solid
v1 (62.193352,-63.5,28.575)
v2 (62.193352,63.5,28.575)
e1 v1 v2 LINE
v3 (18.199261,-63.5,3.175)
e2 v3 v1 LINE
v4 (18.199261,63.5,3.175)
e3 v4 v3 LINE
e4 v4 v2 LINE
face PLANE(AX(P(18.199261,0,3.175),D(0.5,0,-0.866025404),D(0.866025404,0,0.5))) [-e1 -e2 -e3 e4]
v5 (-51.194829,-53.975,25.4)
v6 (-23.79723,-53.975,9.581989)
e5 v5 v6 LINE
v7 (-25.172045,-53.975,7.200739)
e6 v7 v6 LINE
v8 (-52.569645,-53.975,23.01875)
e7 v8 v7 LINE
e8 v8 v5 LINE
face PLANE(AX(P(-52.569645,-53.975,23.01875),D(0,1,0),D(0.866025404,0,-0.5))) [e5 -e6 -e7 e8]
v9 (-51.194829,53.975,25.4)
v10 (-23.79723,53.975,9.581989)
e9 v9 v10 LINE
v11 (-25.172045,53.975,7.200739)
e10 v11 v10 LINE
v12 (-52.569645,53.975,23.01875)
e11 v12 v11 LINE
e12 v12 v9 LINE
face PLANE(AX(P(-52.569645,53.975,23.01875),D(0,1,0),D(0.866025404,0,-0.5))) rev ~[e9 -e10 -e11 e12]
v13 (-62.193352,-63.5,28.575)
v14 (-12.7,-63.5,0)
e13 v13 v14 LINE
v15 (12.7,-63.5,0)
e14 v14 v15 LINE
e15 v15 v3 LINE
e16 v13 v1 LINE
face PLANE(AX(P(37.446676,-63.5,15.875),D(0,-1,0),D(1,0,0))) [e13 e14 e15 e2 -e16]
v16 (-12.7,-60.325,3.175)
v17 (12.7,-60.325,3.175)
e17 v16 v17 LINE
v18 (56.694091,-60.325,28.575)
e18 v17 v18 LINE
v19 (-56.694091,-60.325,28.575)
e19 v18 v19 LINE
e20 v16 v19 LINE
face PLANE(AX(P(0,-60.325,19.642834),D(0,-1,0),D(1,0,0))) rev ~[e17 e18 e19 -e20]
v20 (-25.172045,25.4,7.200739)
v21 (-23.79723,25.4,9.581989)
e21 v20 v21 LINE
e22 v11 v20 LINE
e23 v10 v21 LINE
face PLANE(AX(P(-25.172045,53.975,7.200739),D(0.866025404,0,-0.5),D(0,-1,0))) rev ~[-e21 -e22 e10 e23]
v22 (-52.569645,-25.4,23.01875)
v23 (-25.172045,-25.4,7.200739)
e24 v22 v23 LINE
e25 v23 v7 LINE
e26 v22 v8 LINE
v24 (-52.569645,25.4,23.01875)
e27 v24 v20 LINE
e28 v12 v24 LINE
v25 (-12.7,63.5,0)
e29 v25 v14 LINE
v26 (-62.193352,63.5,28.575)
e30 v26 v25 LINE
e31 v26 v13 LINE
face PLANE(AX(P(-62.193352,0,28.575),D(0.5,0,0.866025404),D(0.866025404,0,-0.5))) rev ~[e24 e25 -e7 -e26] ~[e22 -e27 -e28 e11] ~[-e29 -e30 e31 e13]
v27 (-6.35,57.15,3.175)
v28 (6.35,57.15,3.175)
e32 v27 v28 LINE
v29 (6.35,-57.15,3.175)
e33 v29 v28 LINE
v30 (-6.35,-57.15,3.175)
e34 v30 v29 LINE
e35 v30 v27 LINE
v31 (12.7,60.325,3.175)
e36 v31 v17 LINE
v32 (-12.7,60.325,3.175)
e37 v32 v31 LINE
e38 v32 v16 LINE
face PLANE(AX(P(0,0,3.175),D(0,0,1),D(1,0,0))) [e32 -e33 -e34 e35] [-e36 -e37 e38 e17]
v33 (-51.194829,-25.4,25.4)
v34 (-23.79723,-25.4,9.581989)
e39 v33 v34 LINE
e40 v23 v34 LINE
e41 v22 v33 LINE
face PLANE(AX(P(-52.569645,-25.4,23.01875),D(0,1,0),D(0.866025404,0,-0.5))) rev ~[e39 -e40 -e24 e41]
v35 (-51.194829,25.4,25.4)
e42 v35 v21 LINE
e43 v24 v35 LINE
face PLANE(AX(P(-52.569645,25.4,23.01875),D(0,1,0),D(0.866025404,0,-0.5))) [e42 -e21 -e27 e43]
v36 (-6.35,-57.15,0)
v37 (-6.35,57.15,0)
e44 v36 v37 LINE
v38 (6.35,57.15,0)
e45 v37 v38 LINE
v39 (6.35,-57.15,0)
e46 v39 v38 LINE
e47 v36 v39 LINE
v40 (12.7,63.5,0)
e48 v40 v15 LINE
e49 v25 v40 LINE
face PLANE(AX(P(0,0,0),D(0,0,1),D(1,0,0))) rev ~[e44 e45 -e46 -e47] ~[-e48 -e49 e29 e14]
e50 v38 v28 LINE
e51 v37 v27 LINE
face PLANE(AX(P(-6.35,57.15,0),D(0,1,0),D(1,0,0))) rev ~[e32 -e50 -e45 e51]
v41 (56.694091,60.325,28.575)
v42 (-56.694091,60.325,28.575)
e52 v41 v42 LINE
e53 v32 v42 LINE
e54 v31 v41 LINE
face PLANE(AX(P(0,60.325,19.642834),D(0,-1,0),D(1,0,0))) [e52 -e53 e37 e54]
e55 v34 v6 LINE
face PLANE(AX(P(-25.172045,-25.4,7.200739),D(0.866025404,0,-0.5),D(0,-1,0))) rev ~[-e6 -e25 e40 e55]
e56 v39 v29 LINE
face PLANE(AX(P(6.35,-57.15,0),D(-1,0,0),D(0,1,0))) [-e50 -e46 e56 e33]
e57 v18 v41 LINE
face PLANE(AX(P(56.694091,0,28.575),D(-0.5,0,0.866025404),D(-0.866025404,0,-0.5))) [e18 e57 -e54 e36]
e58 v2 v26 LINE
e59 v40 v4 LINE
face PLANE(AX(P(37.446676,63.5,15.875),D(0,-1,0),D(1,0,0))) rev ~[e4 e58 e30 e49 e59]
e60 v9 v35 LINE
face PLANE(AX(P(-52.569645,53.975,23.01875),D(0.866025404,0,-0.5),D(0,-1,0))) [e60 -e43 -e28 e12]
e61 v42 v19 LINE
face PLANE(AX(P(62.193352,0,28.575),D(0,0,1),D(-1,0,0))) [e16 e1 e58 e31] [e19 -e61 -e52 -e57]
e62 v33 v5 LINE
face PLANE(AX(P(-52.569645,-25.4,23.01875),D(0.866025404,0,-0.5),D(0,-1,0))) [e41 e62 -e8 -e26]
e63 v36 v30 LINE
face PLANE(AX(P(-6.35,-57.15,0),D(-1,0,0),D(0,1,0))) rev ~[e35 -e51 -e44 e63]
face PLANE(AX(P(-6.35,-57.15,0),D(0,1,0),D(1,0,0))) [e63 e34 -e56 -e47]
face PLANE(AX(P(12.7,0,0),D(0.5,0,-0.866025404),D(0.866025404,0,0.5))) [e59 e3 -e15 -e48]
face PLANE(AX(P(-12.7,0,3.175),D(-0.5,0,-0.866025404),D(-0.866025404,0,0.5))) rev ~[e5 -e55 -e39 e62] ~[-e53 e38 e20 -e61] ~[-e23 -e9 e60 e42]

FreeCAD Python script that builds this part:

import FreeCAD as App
import Part
import Sketcher

V = App.Vector
Q = App.Units.Quantity

doc = App.newDocument("Part")
params = doc.addObject("Spreadsheet::Sheet", "Params")
for row, (alias, value) in enumerate([
    ("sketch1_width", "1 in"),
    ("sketch1_height", "5 in"),
    ("sketch1_width2", "0.5 in"),
    ("sketch1_height2", "4.5 in"),
    ("pad1_length", "0.125 in"),
    ("sketch2_length", "2 in"),
    ("sketch2_length2", "0.25 in"),
    ("pad2_length", "2.5 in"),
    ("pad2_length2", "2.5 in"),
    ("sketch3_width", "1 in"),
    ("sketch3_length", "2.25 in"),
    ("pad3_length", "0.125 in"),
    ("sketch4_width", "1 in"),
    ("sketch4_length", "2.25 in"),
    ("pad4_length", "0.125 in"),
    ("sketch5_height", "1.125 in"),
], start=1):
    params.set(f"A{row}", alias)
    params.set(f"B{row}", "=" + value)
    params.setAlias(f"B{row}", alias)

body = doc.addObject("PartDesign::Body", "Body")

# Sketch on XY plane
sketch1 = body.newObject("Sketcher::SketchObject", "Sketch")
sketch1.AttachmentSupport = (doc.getObject("XY_Plane"), [""])
sketch1.MapMode = "FlatFace"
sketch1.addGeometry([
    Part.LineSegment(V(-12.7, 63.5, 0), V(-12.7, -63.5, 0)),  # 0
    Part.LineSegment(V(-12.7, -63.5, 0), V(12.7, -63.5, 0)),  # 1
    Part.LineSegment(V(12.7, -63.5, 0), V(12.7, 63.5, 0)),  # 2
    Part.LineSegment(V(12.7, 63.5, 0), V(-12.7, 63.5, 0)),  # 3
    Part.LineSegment(V(6.35, -57.15, 0), V(-6.35, -57.15, 0)),  # 4
    Part.LineSegment(V(-6.35, -57.15, 0), V(-6.35, 57.15, 0)),  # 5
    Part.LineSegment(V(-6.35, 57.15, 0), V(6.35, 57.15, 0)),  # 6
    Part.LineSegment(V(6.35, 57.15, 0), V(6.35, -57.15, 0)),  # 7
], False)
sketch1.addConstraint([
    Sketcher.Constraint("Coincident", 0, 2, 1, 1),
    Sketcher.Constraint("Coincident", 1, 2, 2, 1),
    Sketcher.Constraint("Coincident", 2, 2, 3, 1),
    Sketcher.Constraint("Coincident", 3, 2, 0, 1),
    Sketcher.Constraint("Coincident", 4, 2, 5, 1),
    Sketcher.Constraint("Coincident", 5, 2, 6, 1),
    Sketcher.Constraint("Coincident", 6, 2, 7, 1),
    Sketcher.Constraint("Coincident", 7, 2, 4, 1),
    Sketcher.Constraint("Vertical", 0),
    Sketcher.Constraint("Horizontal", 1),
    Sketcher.Constraint("Vertical", 2),
    Sketcher.Constraint("Horizontal", 3),
    Sketcher.Constraint("Horizontal", 4),
    Sketcher.Constraint("Vertical", 5),
    Sketcher.Constraint("Horizontal", 6),
    Sketcher.Constraint("Vertical", 7),
    Sketcher.Constraint("Symmetric", 0, 2, 2, 2, -1, 1),
    Sketcher.Constraint("Symmetric", 4, 2, 6, 2, -1, 1),
    Sketcher.Constraint("DistanceX", 1, 1, 1, 2, Q("1 in")),
    Sketcher.Constraint("DistanceY", 0, 2, 0, 1, Q("5 in")),
    Sketcher.Constraint("DistanceX", 4, 2, 4, 1, Q("0.5 in")),
    Sketcher.Constraint("DistanceY", 5, 1, 5, 2, Q("4.5 in")),
])
sketch1.setExpression("Constraints[18]", "Params.sketch1_width")
sketch1.setExpression("Constraints[19]", "Params.sketch1_height")
sketch1.setExpression("Constraints[20]", "Params.sketch1_width2")
sketch1.setExpression("Constraints[21]", "Params.sketch1_height2")
pad1 = body.newObject("PartDesign::Pad", "Pad")
pad1.Profile = sketch1
pad1.setExpression("Length", "Params.pad1_length")

# Sketch on XZ plane
sketch2 = body.newObject("Sketcher::SketchObject", "Sketch001")
sketch2.AttachmentSupport = (doc.getObject("XZ_Plane"), [""])
sketch2.MapMode = "FlatFace"
sketch2.addGeometry([
    Part.LineSegment(V(56.694091, 28.575, 0), V(12.7, 3.175, 0)),  # 0
    Part.LineSegment(V(12.7, 3.175, 0), V(12.7, 0, 0)),  # 1
    Part.LineSegment(V(12.7, 0, 0), V(18.199261, 3.175, 0)),  # 2
    Part.LineSegment(V(18.199261, 3.175, 0), V(62.193352, 28.575, 0)),  # 3
    Part.LineSegment(V(62.193352, 28.575, 0), V(56.694091, 28.575, 0)),  # 4
    Part.LineSegment(V(-12.7, 3.175, 0), V(-56.694091, 28.575, 0)),  # 5
    Part.LineSegment(V(-56.694091, 28.575, 0), V(-62.193352, 28.575, 0)),  # 6
    Part.LineSegment(V(-62.193352, 28.575, 0), V(-12.7, 0, 0)),  # 7
    Part.LineSegment(V(-12.7, 0, 0), V(-12.7, 3.175, 0)),  # 8
], False)
sketch2.addConstraint([
    Sketcher.Constraint("Coincident", 0, 2, 1, 1),
    Sketcher.Constraint("Coincident", 1, 2, 2, 1),
    Sketcher.Constraint("Coincident", 2, 2, 3, 1),
    Sketcher.Constraint("Coincident", 3, 2, 4, 1),
    Sketcher.Constraint("Coincident", 4, 2, 0, 1),
    Sketcher.Constraint("Coincident", 5, 2, 6, 1),
    Sketcher.Constraint("Coincident", 6, 2, 7, 1),
    Sketcher.Constraint("Coincident", 7, 2, 8, 1),
    Sketcher.Constraint("Coincident", 8, 2, 5, 1),
    Sketcher.Constraint("Vertical", 1),
    Sketcher.Constraint("Horizontal", 4),
    Sketcher.Constraint("Horizontal", 6),
    Sketcher.Constraint("Vertical", 8),
    Sketcher.Constraint("Symmetric", 1, 2, 7, 2, -1, 1),
    Sketcher.Constraint("Symmetric", 4, 2, 5, 2, -2),
    Sketcher.Constraint("PointOnObject", 1, 2, -1),
    Sketcher.Constraint("Parallel", 0, 2),
    Sketcher.Constraint("Parallel", 2, 3),
    Sketcher.Constraint("Parallel", 5, 7),
    Sketcher.Constraint("Horizontal", 0, 2, 2, 2),
    Sketcher.Constraint("Horizontal", 2, 2, 8, 2),
    Sketcher.Constraint("Distance", 0, Q("2 in")),
    Sketcher.Constraint("Angle", 0, Q("-150 deg")),
    Sketcher.Constraint("DistanceX", 7, 2, 1, 2, Q("1 in")),
    Sketcher.Constraint("Distance", 2, Q("0.25 in")),
])
sketch2.setExpression("Constraints[21]", "Params.sketch2_length")
sketch2.setExpression("Constraints[24]", "Params.sketch2_length2")
pad2 = body.newObject("PartDesign::Pad", "Pad001")
pad2.Profile = sketch2
pad2.Type = "TwoLengths"
pad2.setExpression("Length", "Params.pad2_length")
pad2.setExpression("Length2", "Params.pad2_length2")

# Sketch on XZ plane
sketch3 = body.newObject("Sketcher::SketchObject", "Sketch002")
sketch3.AttachmentSupport = (doc.getObject("XZ_Plane"), [""])
sketch3.MapMode = "FlatFace"
sketch3.AttachmentOffset = App.Placement(V(0, 0, 2.5 * 25.4), App.Rotation())
sketch3.addGeometry([
    Part.LineSegment(V(62.193352, 28.575, 0), V(-62.193352, 28.575, 0)),
    Part.LineSegment(V(-62.193352, 28.575, 0), V(-12.7, 0, 0)),
    Part.LineSegment(V(-12.7, 0, 0), V(12.7, 0, 0)),
    Part.LineSegment(V(12.7, 0, 0), V(62.193352, 28.575, 0)),
], False)
sketch3.addConstraint([
    Sketcher.Constraint("Coincident", 0, 2, 1, 1),
    Sketcher.Constraint("Coincident", 1, 2, 2, 1),
    Sketcher.Constraint("Coincident", 2, 2, 3, 1),
    Sketcher.Constraint("Coincident", 3, 2, 0, 1),
    Sketcher.Constraint("Horizontal", 0),
    Sketcher.Constraint("Horizontal", 2),
    Sketcher.Constraint("Symmetric", 1, 2, 2, 2, -1, 1),
    Sketcher.Constraint("Equal", 1, 3),
    Sketcher.Constraint("DistanceX", 2, 1, 2, 2, Q("1 in")),
    Sketcher.Constraint("Angle", 1, Q("-30 deg")),
    Sketcher.Constraint("Distance", 1, Q("2.25 in")),
])
sketch3.setExpression("Constraints[8]", "Params.sketch3_width")
sketch3.setExpression("Constraints[10]", "Params.sketch3_length")
pad3 = body.newObject("PartDesign::Pad", "Pad002")
pad3.Profile = sketch3
pad3.setExpression("Length", "Params.pad3_length")
pad3.Reversed = True

# Sketch on XZ plane
sketch4 = body.newObject("Sketcher::SketchObject", "Sketch003")
sketch4.AttachmentSupport = (doc.getObject("XZ_Plane"), [""])
sketch4.MapMode = "FlatFace"
sketch4.AttachmentOffset = App.Placement(V(0, 0, -2.5 * 25.4), App.Rotation())
sketch4.addGeometry([
    Part.LineSegment(V(62.193352, 28.575, 0), V(-62.193352, 28.575, 0)),
    Part.LineSegment(V(-62.193352, 28.575, 0), V(-12.7, 0, 0)),
    Part.LineSegment(V(-12.7, 0, 0), V(12.7, 0, 0)),
    Part.LineSegment(V(12.7, 0, 0), V(62.193352, 28.575, 0)),
], False)
sketch4.addConstraint([
    Sketcher.Constraint("Coincident", 0, 2, 1, 1),
    Sketcher.Constraint("Coincident", 1, 2, 2, 1),
    Sketcher.Constraint("Coincident", 2, 2, 3, 1),
    Sketcher.Constraint("Coincident", 3, 2, 0, 1),
    Sketcher.Constraint("Horizontal", 0),
    Sketcher.Constraint("Horizontal", 2),
    Sketcher.Constraint("Symmetric", 1, 2, 2, 2, -1, 1),
    Sketcher.Constraint("Equal", 1, 3),
    Sketcher.Constraint("DistanceX", 2, 1, 2, 2, Q("1 in")),
    Sketcher.Constraint("Angle", 1, Q("-30 deg")),
    Sketcher.Constraint("Distance", 1, Q("2.25 in")),
])
sketch4.setExpression("Constraints[8]", "Params.sketch4_width")
sketch4.setExpression("Constraints[10]", "Params.sketch4_length")
pad4 = body.newObject("PartDesign::Pad", "Pad003")
pad4.Profile = sketch4
pad4.setExpression("Length", "Params.pad4_length")

# Sketch on an angled plane
sketch5 = body.newObject("Sketcher::SketchObject", "Sketch004")
sketch5.Placement = App.Placement(V(-3.175, 0, -5.499261), App.Rotation(V(0.866025404, 0, -0.5), V(0, -1, 0), V(-0.5, 0, -0.866025404), "ZXY"))
sketch5.addGeometry([
    Part.LineSegment(V(-57.036023, 53.975, 0), V(-57.036023, 25.4, 0)),  # 0
    Part.LineSegment(V(-57.036023, 25.4, 0), V(-25.4, 25.4, 0)),  # 1
    Part.LineSegment(V(-25.4, 25.4, 0), V(-25.4, 53.975, 0)),  # 2
    Part.LineSegment(V(-25.4, 53.975, 0), V(-57.036023, 53.975, 0)),  # 3
    Part.LineSegment(V(-57.036023, -25.4, 0), V(-57.036023, -53.975, 0)),  # 4
    Part.LineSegment(V(-57.036023, -53.975, 0), V(-25.4, -53.975, 0)),  # 5
    Part.LineSegment(V(-25.4, -53.975, 0), V(-25.4, -25.4, 0)),  # 6
    Part.LineSegment(V(-25.4, -25.4, 0), V(-57.036023, -25.4, 0)),  # 7
], False)
sketch5.addConstraint([
    Sketcher.Constraint("Coincident", 0, 2, 1, 1),
    Sketcher.Constraint("Coincident", 1, 2, 2, 1),
    Sketcher.Constraint("Coincident", 2, 2, 3, 1),
    Sketcher.Constraint("Coincident", 3, 2, 0, 1),
    Sketcher.Constraint("Coincident", 4, 2, 5, 1),
    Sketcher.Constraint("Coincident", 5, 2, 6, 1),
    Sketcher.Constraint("Coincident", 6, 2, 7, 1),
    Sketcher.Constraint("Coincident", 7, 2, 4, 1),
    Sketcher.Constraint("Vertical", 0),
    Sketcher.Constraint("Horizontal", 1),
    Sketcher.Constraint("Vertical", 2),
    Sketcher.Constraint("Horizontal", 3),
    Sketcher.Constraint("Vertical", 4),
    Sketcher.Constraint("Horizontal", 5),
    Sketcher.Constraint("Vertical", 6),
    Sketcher.Constraint("Horizontal", 7),
    Sketcher.Constraint("Symmetric", 3, 2, 4, 2, -1),
    Sketcher.Constraint("Symmetric", 1, 2, 6, 2, -1),
    Sketcher.Constraint("DistanceY", -1, 1, 0, 2, Q("1 in")),
    Sketcher.Constraint("DistanceX", 1, 2, -1, 1, Q("1 in")),
    Sketcher.Constraint("DistanceY", 0, 2, 0, 1, Q("1.125 in")),
    Sketcher.Constraint("DistanceX", 1, 1, 1, 2, 31.636023),
])
sketch5.setExpression("Constraints[20]", "Params.sketch5_height")
pocket1 = body.newObject("PartDesign::Pocket", "Pocket")
pocket1.Profile = sketch5
pocket1.Type = "ThroughAll"

doc.recompute()
